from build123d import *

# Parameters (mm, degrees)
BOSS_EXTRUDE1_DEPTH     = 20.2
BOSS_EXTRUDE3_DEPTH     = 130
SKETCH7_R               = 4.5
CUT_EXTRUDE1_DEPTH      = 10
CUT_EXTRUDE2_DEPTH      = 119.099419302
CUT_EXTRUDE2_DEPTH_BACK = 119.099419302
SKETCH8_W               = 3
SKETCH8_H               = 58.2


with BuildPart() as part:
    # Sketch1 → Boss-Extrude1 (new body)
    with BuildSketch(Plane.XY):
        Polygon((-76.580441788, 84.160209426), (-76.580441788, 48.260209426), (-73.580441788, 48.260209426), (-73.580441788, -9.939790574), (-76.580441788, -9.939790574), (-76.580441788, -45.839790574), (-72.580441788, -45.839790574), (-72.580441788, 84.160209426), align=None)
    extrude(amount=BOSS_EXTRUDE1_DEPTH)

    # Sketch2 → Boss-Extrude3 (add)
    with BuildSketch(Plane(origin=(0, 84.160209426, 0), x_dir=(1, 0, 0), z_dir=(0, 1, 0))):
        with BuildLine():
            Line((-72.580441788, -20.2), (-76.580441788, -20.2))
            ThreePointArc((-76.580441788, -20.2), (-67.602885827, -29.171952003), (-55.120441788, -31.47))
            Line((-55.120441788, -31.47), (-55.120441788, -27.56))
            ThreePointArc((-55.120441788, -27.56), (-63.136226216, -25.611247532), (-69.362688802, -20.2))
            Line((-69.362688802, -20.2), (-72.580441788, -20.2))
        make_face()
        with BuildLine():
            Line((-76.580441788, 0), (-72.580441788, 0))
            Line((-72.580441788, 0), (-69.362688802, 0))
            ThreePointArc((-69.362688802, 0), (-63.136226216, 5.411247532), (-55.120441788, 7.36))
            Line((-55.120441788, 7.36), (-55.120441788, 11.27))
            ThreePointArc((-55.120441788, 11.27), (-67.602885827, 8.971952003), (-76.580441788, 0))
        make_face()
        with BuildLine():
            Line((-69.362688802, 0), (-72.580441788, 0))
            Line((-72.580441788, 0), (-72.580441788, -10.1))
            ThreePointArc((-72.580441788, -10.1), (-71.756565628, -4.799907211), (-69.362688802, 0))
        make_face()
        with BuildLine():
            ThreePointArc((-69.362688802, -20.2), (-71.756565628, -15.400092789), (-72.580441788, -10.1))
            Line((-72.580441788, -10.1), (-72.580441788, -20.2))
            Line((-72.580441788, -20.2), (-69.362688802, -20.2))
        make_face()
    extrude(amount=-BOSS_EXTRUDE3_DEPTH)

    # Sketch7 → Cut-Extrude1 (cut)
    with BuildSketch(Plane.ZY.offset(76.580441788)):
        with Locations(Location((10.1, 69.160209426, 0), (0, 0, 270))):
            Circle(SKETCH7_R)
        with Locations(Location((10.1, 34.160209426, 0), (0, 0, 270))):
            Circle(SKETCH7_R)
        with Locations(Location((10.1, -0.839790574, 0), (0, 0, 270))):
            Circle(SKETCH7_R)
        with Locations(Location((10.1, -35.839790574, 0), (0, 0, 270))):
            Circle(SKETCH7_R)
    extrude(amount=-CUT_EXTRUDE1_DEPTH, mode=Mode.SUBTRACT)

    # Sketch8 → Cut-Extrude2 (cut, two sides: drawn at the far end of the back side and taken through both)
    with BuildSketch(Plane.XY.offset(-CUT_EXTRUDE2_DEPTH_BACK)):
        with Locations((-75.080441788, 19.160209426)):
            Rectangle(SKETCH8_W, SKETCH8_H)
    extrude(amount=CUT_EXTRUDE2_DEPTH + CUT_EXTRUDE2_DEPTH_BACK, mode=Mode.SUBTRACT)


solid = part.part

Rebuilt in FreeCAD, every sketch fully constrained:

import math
import FreeCAD as App
import Part
import Sketcher

V = App.Vector
Q = App.Units.Quantity

doc = App.newDocument("Part")
body = doc.addObject("PartDesign::Body", "Body")

sketch1 = body.newObject("Sketcher::SketchObject", "Sketch")
sketch1.AttachmentSupport = (doc.getObject("XY_Plane"), [""])
sketch1.MapMode = "FlatFace"
sketch1.addGeometry(Part.LineSegment(V(-76.6, 84.2, 0), V(-76.6, 48.3, 0)), False)
sketch1.addGeometry(Part.LineSegment(V(-76.6, 48.3, 0), V(-73.6, 48.3, 0)), False)
sketch1.addGeometry(Part.LineSegment(V(-73.6, 48.3, 0), V(-73.6, -9.9, 0)), False)
sketch1.addGeometry(Part.LineSegment(V(-73.6, -9.9, 0), V(-76.6, -9.9, 0)), False)
sketch1.addGeometry(Part.LineSegment(V(-76.6, -9.9, 0), V(-76.6, -45.8, 0)), False)
sketch1.addGeometry(Part.LineSegment(V(-76.6, -45.8, 0), V(-72.6, -45.8, 0)), False)
sketch1.addGeometry(Part.LineSegment(V(-72.6, -45.8, 0), V(-72.6, 84.2, 0)), False)
sketch1.addGeometry(Part.LineSegment(V(-72.6, 84.2, 0), V(-76.6, 84.2, 0)), False)
sketch1.addConstraint(Sketcher.Constraint("Coincident", 0, 2, 1, 1))
sketch1.addConstraint(Sketcher.Constraint("Coincident", 1, 2, 2, 1))
sketch1.addConstraint(Sketcher.Constraint("Coincident", 2, 2, 3, 1))
sketch1.addConstraint(Sketcher.Constraint("Coincident", 3, 2, 4, 1))
sketch1.addConstraint(Sketcher.Constraint("Coincident", 4, 2, 5, 1))
sketch1.addConstraint(Sketcher.Constraint("Coincident", 5, 2, 6, 1))
sketch1.addConstraint(Sketcher.Constraint("Coincident", 6, 2, 7, 1))
sketch1.addConstraint(Sketcher.Constraint("Coincident", 7, 2, 0, 1))
sketch1.addConstraint(Sketcher.Constraint("Vertical", 0))
sketch1.addConstraint(Sketcher.Constraint("Horizontal", 1))
sketch1.addConstraint(Sketcher.Constraint("Vertical", 2))
sketch1.addConstraint(Sketcher.Constraint("Horizontal", 3))
sketch1.addConstraint(Sketcher.Constraint("Vertical", 4))
sketch1.addConstraint(Sketcher.Constraint("Horizontal", 5))
sketch1.addConstraint(Sketcher.Constraint("Vertical", 6))
sketch1.addConstraint(Sketcher.Constraint("Horizontal", 7))
sketch1.addConstraint(Sketcher.Constraint("Vertical", 0, 2, 3, 2))
sketch1.addConstraint(Sketcher.Constraint("Equal", 0, 4))
sketch1.addConstraint(Sketcher.Constraint("DistanceX", 1, 1, 1, 2, Q("3 mm")))
sketch1.addConstraint(Sketcher.Constraint("DistanceX", 5, 1, 5, 2, Q("4 mm")))
sketch1.addConstraint(Sketcher.Constraint("DistanceY", 6, 1, 6, 2, Q("130 mm")))
sketch1.addConstraint(Sketcher.Constraint("DistanceY", 0, 2, 0, 1, Q("35.9 mm")))
sketch1.addConstraint(Sketcher.Constraint("DistanceX", 0, 2, -1, 1, Q("76.580442 mm")))
sketch1.addConstraint(Sketcher.Constraint("DistanceY", -1, 1, 0, 2, Q("48.260209 mm")))
pad1 = body.newObject("PartDesign::Pad", "Pad")
pad1.Profile = sketch1
pad1.Length = 20.2

sketch2 = body.newObject("Sketcher::SketchObject", "Sketch001")
sketch2.AttachmentSupport = (doc.getObject("XZ_Plane"), [""])
sketch2.MapMode = "FlatFace"
sketch2.AttachmentOffset = App.Placement(V(0, 0, -84.160209), App.Rotation())
sketch2.addGeometry(Part.ArcOfCircle(Part.Circle(V(-57.7, 10.3, 0), V(0, 0, 1), 21.4), math.radians(83), math.radians(152)), False)
sketch2.addGeometry(Part.LineSegment(V(-55.1, 31.5, 0), V(-55.1, 27.6, 0)), False)
sketch2.addGeometry(Part.ArcOfCircle(Part.Circle(V(-55.1, 10.1, 0), V(0, 0, 1), 17.5), math.radians(90), math.radians(145)), False)
sketch2.addGeometry(Part.ArcOfCircle(Part.Circle(V(-55.1, 10.1, 0), V(0, 0, 1), 17.5), math.radians(145), math.radians(180)), False)
sketch2.addGeometry(Part.LineSegment(V(-72.6, 10.1, 0), V(-72.6, 20.2, 0)), False)
sketch2.addGeometry(Part.LineSegment(V(-72.6, 20.2, 0), V(-76.6, 20.2, 0)), False)
sketch2.addGeometry(Part.LineSegment(V(-76.6, 0, 0), V(-72.6, 0, 0)), False)
sketch2.addGeometry(Part.LineSegment(V(-72.6, 0, 0), V(-72.6, 10.1, 0)), False)
sketch2.addGeometry(Part.ArcOfCircle(Part.Circle(V(-55.1, 10.1, 0), V(0, 0, 1), 17.5), math.radians(-180), math.radians(-145)), False)
sketch2.addGeometry(Part.ArcOfCircle(Part.Circle(V(-55.1, 10.1, 0), V(0, 0, 1), 17.5), math.radians(-145), math.radians(-90)), False)
sketch2.addGeometry(Part.LineSegment(V(-55.1, -7.4, 0), V(-55.1, -11.3, 0)), False)
sketch2.addGeometry(Part.ArcOfCircle(Part.Circle(V(-57.7, 9.9, 0), V(0, 0, 1), 21.4), math.radians(-152), math.radians(-83)), False)
sketch2.addConstraint(Sketcher.Constraint("Coincident", 0, 1, 1, 1))
sketch2.addConstraint(Sketcher.Constraint("Coincident", 1, 2, 2, 1))
sketch2.addConstraint(Sketcher.Constraint("Tangent", 2, 2, 3, 1))
sketch2.addConstraint(Sketcher.Constraint("Tangent", 3, 2, 4, 1))
sketch2.addConstraint(Sketcher.Constraint("Coincident", 4, 2, 5, 1))
sketch2.addConstraint(Sketcher.Constraint("Coincident", 5, 2, 0, 2))
sketch2.addConstraint(Sketcher.Constraint("Coincident", 6, 2, 7, 1))
sketch2.addConstraint(Sketcher.Constraint("Tangent", 7, 2, 8, 1))
sketch2.addConstraint(Sketcher.Constraint("Tangent", 8, 2, 9, 1))
sketch2.addConstraint(Sketcher.Constraint("Coincident", 9, 2, 10, 1))
sketch2.addConstraint(Sketcher.Constraint("Coincident", 10, 2, 11, 2))
sketch2.addConstraint(Sketcher.Constraint("Coincident", 11, 1, 6, 1))
sketch2.addConstraint(Sketcher.Constraint("Vertical", 1))
sketch2.addConstraint(Sketcher.Constraint("Vertical", 4))
sketch2.addConstraint(Sketcher.Constraint("Horizontal", 5))
sketch2.addConstraint(Sketcher.Constraint("Horizontal", 6))
sketch2.addConstraint(Sketcher.Constraint("Vertical", 7))
sketch2.addConstraint(Sketcher.Constraint("Vertical", 10))
sketch2.addConstraint(Sketcher.Constraint("Coincident", 8, 3, 2, 3))
sketch2.addConstraint(Sketcher.Constraint("Coincident", 7, 2, 3, 2))
sketch2.addConstraint(Sketcher.Constraint("Equal", 8, 9))
sketch2.addConstraint(Sketcher.Constraint("Equal", 0, 11))
sketch2.addConstraint(Sketcher.Constraint("PointOnObject", 6, 2, -1))
sketch2.addConstraint(Sketcher.Constraint("PointOnObject", 8, 2, -1))
sketch2.addConstraint(Sketcher.Constraint("Horizontal", 2, 2, 4, 2))
sketch2.addConstraint(Sketcher.Constraint("Vertical", 0, 3, 11, 3))
sketch2.addConstraint(Sketcher.Constraint("Vertical", 9, 3, 0, 1))
sketch2.addConstraint(Sketcher.Constraint("Vertical", 2, 2, 8, 2))
sketch2.addConstraint(Sketcher.Constraint("Vertical", 1, 2, 9, 2))
sketch2.addConstraint(Sketcher.Constraint("Vertical", 5, 2, 11, 1))
sketch2.addConstraint(Sketcher.Constraint("DistanceX", 5, 2, 5, 1, Q("4 mm")))
sketch2.addConstraint(Sketcher.Constraint("Radius", 0, Q("21.37 mm")))
sketch2.addConstraint(Sketcher.Constraint("Radius", 2, Q("17.46 mm")))
sketch2.addConstraint(Sketcher.Constraint("DistanceY", 4, 1, 4, 2, Q("10.1 mm")))
sketch2.addConstraint(Sketcher.Constraint("DistanceY", 1, 2, 1, 1, Q("3.91 mm")))
sketch2.addConstraint(Sketcher.Constraint("DistanceX", 2, 3, -1, 1, Q("55.120442 mm")))
pad2 = body.newObject("PartDesign::Pad", "Pad001")
pad2.Profile = sketch2
pad2.Length = 130

sketch3 = body.newObject("Sketcher::SketchObject", "Sketch002")
sketch3.AttachmentSupport = (doc.getObject("YZ_Plane"), [""])
sketch3.MapMode = "FlatFace"
sketch3.AttachmentOffset = App.Placement(V(0, 0, -76.580442), App.Rotation())
sketch3.addGeometry(Part.Circle(V(69.2, 10.1, 0), V(0, 0, 1), 4.5), False)
sketch3.addGeometry(Part.Circle(V(34.2, 10.1, 0), V(0, 0, 1), 4.5), False)
sketch3.addGeometry(Part.Circle(V(-0.8, 10.1, 0), V(0, 0, 1), 4.5), False)
sketch3.addGeometry(Part.Circle(V(-35.8, 10.1, 0), V(0, 0, 1), 4.5), False)
sketch3.addConstraint(Sketcher.Constraint("Equal", 0, 1))
sketch3.addConstraint(Sketcher.Constraint("Equal", 1, 2))
sketch3.addConstraint(Sketcher.Constraint("Equal", 2, 3))
sketch3.addConstraint(Sketcher.Constraint("Horizontal", 0, 3, 1, 3))
sketch3.addConstraint(Sketcher.Constraint("Horizontal", 1, 3, 2, 3))
sketch3.addConstraint(Sketcher.Constraint("Horizontal", 2, 3, 3, 3))
sketch3.addConstraint(Sketcher.Constraint("Diameter", 0, Q("9 mm")))
sketch3.addConstraint(Sketcher.Constraint("DistanceX", 1, 3, 0, 3, Q("35 mm")))
sketch3.addConstraint(Sketcher.Constraint("DistanceX", 2, 3, 1, 3, Q("35 mm")))
sketch3.addConstraint(Sketcher.Constraint("DistanceX", 3, 3, 2, 3, Q("35 mm")))
sketch3.addConstraint(Sketcher.Constraint("DistanceY", -1, 1, 0, 3, Q("10.1 mm")))
sketch3.addConstraint(Sketcher.Constraint("DistanceX", -1, 1, 0, 3, Q("69.160209 mm")))
pocket1 = body.newObject("PartDesign::Pocket", "Pocket")
pocket1.Profile = sketch3
pocket1.Length = 10
pocket1.Reversed = True

sketch4 = body.newObject("Sketcher::SketchObject", "Sketch003")
sketch4.AttachmentSupport = (doc.getObject("XY_Plane"), [""])
sketch4.MapMode = "FlatFace"
sketch4.addGeometry(Part.LineSegment(V(-76.6, 48.3, 0), V(-76.6, -9.9, 0)), False)
sketch4.addGeometry(Part.LineSegment(V(-76.6, -9.9, 0), V(-73.6, -9.9, 0)), False)
sketch4.addGeometry(Part.LineSegment(V(-73.6, -9.9, 0), V(-73.6, 48.3, 0)), False)
sketch4.addGeometry(Part.LineSegment(V(-73.6, 48.3, 0), V(-76.6, 48.3, 0)), False)
sketch4.addConstraint(Sketcher.Constraint("Coincident", 0, 2, 1, 1))
sketch4.addConstraint(Sketcher.Constraint("Coincident", 1, 2, 2, 1))
sketch4.addConstraint(Sketcher.Constraint("Coincident", 2, 2, 3, 1))
sketch4.addConstraint(Sketcher.Constraint("Coincident", 3, 2, 0, 1))
sketch4.addConstraint(Sketcher.Constraint("Vertical", 0))
sketch4.addConstraint(Sketcher.Constraint("Horizontal", 1))
sketch4.addConstraint(Sketcher.Constraint("Vertical", 2))
sketch4.addConstraint(Sketcher.Constraint("Horizontal", 3))
sketch4.addConstraint(Sketcher.Constraint("DistanceX", 1, 1, 1, 2, Q("3 mm")))
sketch4.addConstraint(Sketcher.Constraint("DistanceY", 0, 2, 0, 1, Q("58.2 mm")))
sketch4.addConstraint(Sketcher.Constraint("DistanceX", 0, 2, -1, 1, Q("76.580442 mm")))
sketch4.addConstraint(Sketcher.Constraint("DistanceY", 0, 2, -1, 1, Q("9.939791 mm")))
pocket2 = body.newObject("PartDesign::Pocket", "Pocket001")
pocket2.Profile = sketch4
pocket2.Type = "ThroughAll"
pocket2.Midplane = True

doc.recompute()
